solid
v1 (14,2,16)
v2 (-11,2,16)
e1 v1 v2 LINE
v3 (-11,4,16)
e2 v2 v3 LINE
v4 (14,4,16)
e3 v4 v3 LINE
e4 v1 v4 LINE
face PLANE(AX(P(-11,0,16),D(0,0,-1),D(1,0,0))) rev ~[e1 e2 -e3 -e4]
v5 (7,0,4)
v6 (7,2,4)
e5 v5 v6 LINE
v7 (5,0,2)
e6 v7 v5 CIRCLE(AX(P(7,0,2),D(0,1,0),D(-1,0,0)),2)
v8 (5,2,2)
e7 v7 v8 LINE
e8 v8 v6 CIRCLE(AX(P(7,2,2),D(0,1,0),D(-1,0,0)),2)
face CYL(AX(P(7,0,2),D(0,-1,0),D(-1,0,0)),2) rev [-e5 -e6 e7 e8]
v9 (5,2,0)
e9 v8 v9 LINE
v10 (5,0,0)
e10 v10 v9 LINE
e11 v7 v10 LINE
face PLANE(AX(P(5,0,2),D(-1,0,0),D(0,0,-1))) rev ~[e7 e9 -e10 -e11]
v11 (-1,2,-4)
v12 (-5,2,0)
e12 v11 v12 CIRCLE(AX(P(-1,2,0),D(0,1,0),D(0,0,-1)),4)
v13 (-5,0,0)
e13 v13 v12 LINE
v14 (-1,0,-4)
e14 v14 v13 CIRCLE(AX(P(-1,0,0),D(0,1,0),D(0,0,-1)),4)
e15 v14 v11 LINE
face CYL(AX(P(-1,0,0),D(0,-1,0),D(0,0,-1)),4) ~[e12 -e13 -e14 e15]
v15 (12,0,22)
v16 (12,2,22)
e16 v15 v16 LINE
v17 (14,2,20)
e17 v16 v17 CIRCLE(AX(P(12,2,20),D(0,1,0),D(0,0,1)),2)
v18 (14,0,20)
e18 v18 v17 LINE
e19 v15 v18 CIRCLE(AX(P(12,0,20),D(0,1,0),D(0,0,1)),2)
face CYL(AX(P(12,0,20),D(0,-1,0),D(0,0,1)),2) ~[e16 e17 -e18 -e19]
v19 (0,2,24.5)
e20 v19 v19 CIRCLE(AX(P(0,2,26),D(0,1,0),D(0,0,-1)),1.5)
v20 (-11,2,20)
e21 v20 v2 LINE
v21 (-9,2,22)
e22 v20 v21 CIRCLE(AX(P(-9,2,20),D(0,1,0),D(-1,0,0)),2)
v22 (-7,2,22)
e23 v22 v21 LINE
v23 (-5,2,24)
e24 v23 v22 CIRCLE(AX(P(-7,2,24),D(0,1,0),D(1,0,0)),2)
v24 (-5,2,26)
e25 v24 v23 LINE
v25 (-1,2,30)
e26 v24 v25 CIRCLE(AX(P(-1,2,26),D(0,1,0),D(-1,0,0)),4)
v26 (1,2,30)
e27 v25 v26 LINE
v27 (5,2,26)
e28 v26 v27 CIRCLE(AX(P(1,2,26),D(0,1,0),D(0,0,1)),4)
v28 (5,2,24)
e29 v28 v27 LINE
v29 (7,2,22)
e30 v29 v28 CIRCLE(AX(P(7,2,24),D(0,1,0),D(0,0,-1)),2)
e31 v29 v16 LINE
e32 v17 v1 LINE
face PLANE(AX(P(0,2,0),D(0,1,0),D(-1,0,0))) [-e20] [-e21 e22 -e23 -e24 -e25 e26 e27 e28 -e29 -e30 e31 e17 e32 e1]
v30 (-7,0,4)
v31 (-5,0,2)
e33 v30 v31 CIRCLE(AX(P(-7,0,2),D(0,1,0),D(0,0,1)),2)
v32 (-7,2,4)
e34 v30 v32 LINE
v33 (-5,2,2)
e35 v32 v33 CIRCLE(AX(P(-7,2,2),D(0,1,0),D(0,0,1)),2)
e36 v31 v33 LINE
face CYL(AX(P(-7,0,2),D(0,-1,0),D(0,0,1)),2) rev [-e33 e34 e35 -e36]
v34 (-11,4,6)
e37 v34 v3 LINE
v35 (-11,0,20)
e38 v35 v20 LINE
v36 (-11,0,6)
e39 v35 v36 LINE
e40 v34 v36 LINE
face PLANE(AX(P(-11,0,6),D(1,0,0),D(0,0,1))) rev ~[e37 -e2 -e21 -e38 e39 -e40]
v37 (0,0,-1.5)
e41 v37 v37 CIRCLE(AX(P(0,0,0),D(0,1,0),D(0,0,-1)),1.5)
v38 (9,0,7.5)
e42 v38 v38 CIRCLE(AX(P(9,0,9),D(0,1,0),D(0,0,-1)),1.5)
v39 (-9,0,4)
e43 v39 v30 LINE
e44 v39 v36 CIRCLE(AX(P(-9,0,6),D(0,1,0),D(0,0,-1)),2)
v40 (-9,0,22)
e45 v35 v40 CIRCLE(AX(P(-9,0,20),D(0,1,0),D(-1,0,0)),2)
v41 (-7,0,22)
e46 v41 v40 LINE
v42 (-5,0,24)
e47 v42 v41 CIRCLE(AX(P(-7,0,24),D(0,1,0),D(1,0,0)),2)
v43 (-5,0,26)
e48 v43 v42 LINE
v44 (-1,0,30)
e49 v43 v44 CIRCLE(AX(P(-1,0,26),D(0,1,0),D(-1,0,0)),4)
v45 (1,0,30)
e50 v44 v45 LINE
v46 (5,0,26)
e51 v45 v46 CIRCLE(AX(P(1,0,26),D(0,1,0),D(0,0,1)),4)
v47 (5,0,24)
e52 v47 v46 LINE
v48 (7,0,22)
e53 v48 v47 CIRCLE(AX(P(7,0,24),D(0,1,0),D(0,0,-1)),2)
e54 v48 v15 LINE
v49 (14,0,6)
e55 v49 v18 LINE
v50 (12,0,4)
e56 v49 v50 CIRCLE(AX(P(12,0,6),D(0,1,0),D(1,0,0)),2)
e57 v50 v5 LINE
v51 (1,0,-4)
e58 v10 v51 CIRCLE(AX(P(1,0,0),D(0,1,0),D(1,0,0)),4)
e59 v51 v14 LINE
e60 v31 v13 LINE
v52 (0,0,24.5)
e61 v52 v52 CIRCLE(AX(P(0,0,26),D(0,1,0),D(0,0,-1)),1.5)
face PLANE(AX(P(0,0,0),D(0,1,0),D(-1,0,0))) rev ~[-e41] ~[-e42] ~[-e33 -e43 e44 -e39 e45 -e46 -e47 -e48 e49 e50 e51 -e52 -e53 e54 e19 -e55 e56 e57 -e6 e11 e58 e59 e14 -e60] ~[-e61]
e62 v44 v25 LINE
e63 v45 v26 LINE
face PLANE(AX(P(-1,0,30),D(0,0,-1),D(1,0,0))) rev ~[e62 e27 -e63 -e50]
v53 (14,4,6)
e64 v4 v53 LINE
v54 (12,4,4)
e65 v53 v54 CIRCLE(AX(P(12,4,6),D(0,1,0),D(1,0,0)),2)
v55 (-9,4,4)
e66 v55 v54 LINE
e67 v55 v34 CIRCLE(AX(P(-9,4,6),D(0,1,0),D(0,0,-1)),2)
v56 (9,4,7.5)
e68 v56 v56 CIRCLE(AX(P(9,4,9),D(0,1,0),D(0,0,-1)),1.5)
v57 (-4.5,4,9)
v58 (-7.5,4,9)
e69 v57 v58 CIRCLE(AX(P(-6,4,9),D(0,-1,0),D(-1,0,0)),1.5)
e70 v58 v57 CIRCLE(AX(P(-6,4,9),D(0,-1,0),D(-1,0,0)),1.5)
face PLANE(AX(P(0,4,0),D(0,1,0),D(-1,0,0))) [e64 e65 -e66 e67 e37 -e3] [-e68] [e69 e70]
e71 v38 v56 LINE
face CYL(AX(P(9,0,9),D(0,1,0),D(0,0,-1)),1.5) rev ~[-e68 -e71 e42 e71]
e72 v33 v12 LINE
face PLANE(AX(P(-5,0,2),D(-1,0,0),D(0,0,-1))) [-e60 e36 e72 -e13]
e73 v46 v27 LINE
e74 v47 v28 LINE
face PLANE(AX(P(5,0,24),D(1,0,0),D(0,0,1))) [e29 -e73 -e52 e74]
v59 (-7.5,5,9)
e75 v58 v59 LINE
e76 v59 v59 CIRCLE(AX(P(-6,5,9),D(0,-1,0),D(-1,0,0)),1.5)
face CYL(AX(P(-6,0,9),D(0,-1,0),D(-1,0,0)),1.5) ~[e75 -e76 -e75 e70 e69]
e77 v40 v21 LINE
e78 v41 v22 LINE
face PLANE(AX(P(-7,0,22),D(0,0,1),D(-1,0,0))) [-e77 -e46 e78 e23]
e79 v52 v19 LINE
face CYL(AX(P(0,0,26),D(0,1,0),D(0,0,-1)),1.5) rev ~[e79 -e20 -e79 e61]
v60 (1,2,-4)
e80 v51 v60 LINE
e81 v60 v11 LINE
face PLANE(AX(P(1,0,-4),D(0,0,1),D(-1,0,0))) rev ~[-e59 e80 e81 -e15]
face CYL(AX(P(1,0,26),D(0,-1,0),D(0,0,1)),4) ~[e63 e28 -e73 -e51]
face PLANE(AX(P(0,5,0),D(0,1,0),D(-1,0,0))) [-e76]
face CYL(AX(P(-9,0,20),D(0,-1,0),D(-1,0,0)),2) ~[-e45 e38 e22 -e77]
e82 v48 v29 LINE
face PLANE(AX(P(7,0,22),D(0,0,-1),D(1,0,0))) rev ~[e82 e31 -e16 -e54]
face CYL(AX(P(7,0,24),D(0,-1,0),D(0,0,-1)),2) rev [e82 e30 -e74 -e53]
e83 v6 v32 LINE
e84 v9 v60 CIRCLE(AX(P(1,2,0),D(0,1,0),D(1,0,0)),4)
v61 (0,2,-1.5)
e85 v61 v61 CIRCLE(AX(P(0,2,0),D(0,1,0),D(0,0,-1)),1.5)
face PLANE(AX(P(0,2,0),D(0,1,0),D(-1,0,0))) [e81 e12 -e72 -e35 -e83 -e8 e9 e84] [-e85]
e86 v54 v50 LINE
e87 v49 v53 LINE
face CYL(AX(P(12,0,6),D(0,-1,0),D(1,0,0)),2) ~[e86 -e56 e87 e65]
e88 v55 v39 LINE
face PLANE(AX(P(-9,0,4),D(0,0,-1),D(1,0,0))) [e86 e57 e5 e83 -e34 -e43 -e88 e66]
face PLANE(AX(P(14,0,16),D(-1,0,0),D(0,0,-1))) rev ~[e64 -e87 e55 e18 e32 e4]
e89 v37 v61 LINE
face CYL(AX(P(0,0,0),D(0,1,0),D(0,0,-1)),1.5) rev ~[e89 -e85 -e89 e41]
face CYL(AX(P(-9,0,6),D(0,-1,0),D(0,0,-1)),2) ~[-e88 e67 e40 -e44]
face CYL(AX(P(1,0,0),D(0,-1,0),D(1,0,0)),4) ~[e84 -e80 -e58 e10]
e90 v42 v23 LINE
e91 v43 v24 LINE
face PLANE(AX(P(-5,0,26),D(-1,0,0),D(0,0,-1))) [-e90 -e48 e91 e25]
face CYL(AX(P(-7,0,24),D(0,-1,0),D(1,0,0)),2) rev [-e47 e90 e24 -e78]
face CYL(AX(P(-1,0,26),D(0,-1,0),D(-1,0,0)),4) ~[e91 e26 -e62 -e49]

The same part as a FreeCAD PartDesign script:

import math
import FreeCAD as App
import Part
import Sketcher

doc = App.newDocument("Part")
body = doc.addObject("PartDesign::Body", "Body")

# Sketch on XZ plane
sketch1 = doc.addObject("Sketcher::SketchObject", "Sketch")
body.addObject(sketch1)
sketch1.AttachmentSupport = (doc.XZ_Plane, [""])
sketch1.MapMode = "FlatFace"
sketch1.addGeometry([
    Part.LineSegment(App.Vector(-11, 6, 0), App.Vector(-11, 20, 0)),  # 0
    Part.ArcOfCircle(Part.Circle(App.Vector(-9, 20, 0), App.Vector(0, 0, 1), 2), math.radians(90), math.radians(180)),  # 1
    Part.LineSegment(App.Vector(-9, 22, 0), App.Vector(-7, 22, 0)),  # 2
    Part.ArcOfCircle(Part.Circle(App.Vector(-7, 24, 0), App.Vector(0, 0, 1), 2), math.radians(-90), math.radians(0)),  # 3
    Part.LineSegment(App.Vector(-5, 24, 0), App.Vector(-5, 26, 0)),  # 4
    Part.ArcOfCircle(Part.Circle(App.Vector(-1, 26, 0), App.Vector(0, 0, 1), 4), math.radians(90), math.radians(180)),  # 5
    Part.LineSegment(App.Vector(-1, 30, 0), App.Vector(1, 30, 0)),  # 6
    Part.ArcOfCircle(Part.Circle(App.Vector(1, 26, 0), App.Vector(0, 0, 1), 4), math.radians(0), math.radians(90)),  # 7
    Part.LineSegment(App.Vector(5, 26, 0), App.Vector(5, 24, 0)),  # 8
    Part.ArcOfCircle(Part.Circle(App.Vector(7, 24, 0), App.Vector(0, 0, 1), 2), math.radians(180), math.radians(270)),  # 9
    Part.LineSegment(App.Vector(7, 22, 0), App.Vector(12, 22, 0)),  # 10
    Part.ArcOfCircle(Part.Circle(App.Vector(12, 20, 0), App.Vector(0, 0, 1), 2), math.radians(0), math.radians(90)),  # 11
    Part.LineSegment(App.Vector(14, 20, 0), App.Vector(14, 6, 0)),  # 12
    Part.ArcOfCircle(Part.Circle(App.Vector(12, 6, 0), App.Vector(0, 0, 1), 2), math.radians(-90), math.radians(0)),  # 13
    Part.LineSegment(App.Vector(12, 4, 0), App.Vector(7, 4, 0)),  # 14
    Part.ArcOfCircle(Part.Circle(App.Vector(7, 2, 0), App.Vector(0, 0, 1), 2), math.radians(90), math.radians(180)),  # 15
    Part.LineSegment(App.Vector(5, 2, 0), App.Vector(5, 0, 0)),  # 16
    Part.ArcOfCircle(Part.Circle(App.Vector(1, 0, 0), App.Vector(0, 0, 1), 4), math.radians(-90), math.radians(0)),  # 17
    Part.LineSegment(App.Vector(1, -4, 0), App.Vector(-1, -4, 0)),  # 18
    Part.ArcOfCircle(Part.Circle(App.Vector(-1, 0, 0), App.Vector(0, 0, 1), 4), math.radians(180), math.radians(270)),  # 19
    Part.LineSegment(App.Vector(-5, 0, 0), App.Vector(-5, 2, 0)),  # 20
    Part.ArcOfCircle(Part.Circle(App.Vector(-7, 2, 0), App.Vector(0, 0, 1), 2), math.radians(0), math.radians(90)),  # 21
    Part.LineSegment(App.Vector(-7, 4, 0), App.Vector(-9, 4, 0)),  # 22
    Part.ArcOfCircle(Part.Circle(App.Vector(-9, 6, 0), App.Vector(0, 0, 1), 2), math.radians(180), math.radians(270)),  # 23
], False)
sketch1.addConstraint([
    Sketcher.Constraint("Tangent", 0, 2, 1, 2),
    Sketcher.Constraint("Tangent", 1, 1, 2, 1),
    Sketcher.Constraint("Tangent", 2, 2, 3, 1),
    Sketcher.Constraint("Tangent", 3, 2, 4, 1),
    Sketcher.Constraint("Tangent", 4, 2, 5, 2),
    Sketcher.Constraint("Tangent", 5, 1, 6, 1),
    Sketcher.Constraint("Tangent", 6, 2, 7, 2),
    Sketcher.Constraint("Tangent", 7, 1, 8, 1),
    Sketcher.Constraint("Tangent", 8, 2, 9, 1),
    Sketcher.Constraint("Tangent", 9, 2, 10, 1),
    Sketcher.Constraint("Tangent", 10, 2, 11, 2),
    Sketcher.Constraint("Tangent", 11, 1, 12, 1),
    Sketcher.Constraint("Tangent", 12, 2, 13, 2),
    Sketcher.Constraint("Tangent", 13, 1, 14, 1),
    Sketcher.Constraint("Tangent", 14, 2, 15, 1),
    Sketcher.Constraint("Tangent", 15, 2, 16, 1),
    Sketcher.Constraint("Tangent", 16, 2, 17, 2),
    Sketcher.Constraint("Tangent", 17, 1, 18, 1),
    Sketcher.Constraint("Tangent", 18, 2, 19, 2),
    Sketcher.Constraint("Tangent", 19, 1, 20, 1),
    Sketcher.Constraint("Tangent", 20, 2, 21, 1),
    Sketcher.Constraint("Tangent", 21, 2, 22, 1),
    Sketcher.Constraint("Tangent", 22, 2, 23, 2),
    Sketcher.Constraint("Tangent", 23, 1, 0, 1),
    Sketcher.Constraint("Vertical", 0),
    Sketcher.Constraint("Horizontal", 2),
    Sketcher.Constraint("Vertical", 4),
    Sketcher.Constraint("Horizontal", 6),
    Sketcher.Constraint("Vertical", 8),
    Sketcher.Constraint("Horizontal", 10),
    Sketcher.Constraint("Vertical", 12),
    Sketcher.Constraint("Horizontal", 14),
    Sketcher.Constraint("Vertical", 16),
    Sketcher.Constraint("Horizontal", 18),
    Sketcher.Constraint("Vertical", 20),
    Sketcher.Constraint("Horizontal", 22),
    Sketcher.Constraint("Equal", 1, 3),
    Sketcher.Constraint("Equal", 5, 7),
    Sketcher.Constraint("Equal", 3, 9),
    Sketcher.Constraint("Equal", 9, 11),
    Sketcher.Constraint("Equal", 11, 13),
    Sketcher.Constraint("Equal", 13, 15),
    Sketcher.Constraint("Equal", 7, 17),
    Sketcher.Constraint("Equal", 17, 19),
    Sketcher.Constraint("Equal", 15, 21),
    Sketcher.Constraint("Equal", 21, 23),
    Sketcher.Constraint("Symmetric", 17, 3, 19, 3, -1, 1),
    Sketcher.Constraint("Symmetric", 3, 3, 9, 3, -2),
    Sketcher.Constraint("Horizontal", 15, 3, 21, 3),
    Sketcher.Constraint("Vertical", 9, 3, 15, 3),
    Sketcher.Constraint("Equal", 2, 6),
    Sketcher.Constraint("Equal", 22, 4),
    Sketcher.Constraint("Equal", 8, 16),
    Sketcher.Constraint("Radius", 1, 2.0),
    Sketcher.Constraint("Radius", 5, 4.0),
    Sketcher.Constraint("DistanceX", 2, 1, 2, 2, 2.0),
    Sketcher.Constraint("DistanceX", 10, 1, 10, 2, 5.0),
    Sketcher.Constraint("DistanceY", -1, 1, 5, 3, 26.0),
])
pad1 = doc.addObject("PartDesign::Pad", "Pad")
body.addObject(pad1)
pad1.Profile = sketch1
pad1.Length = 2
pad1.Reversed = True

# Sketch on XZ plane
sketch2 = doc.addObject("Sketcher::SketchObject", "Sketch001")
body.addObject(sketch2)
sketch2.AttachmentSupport = (doc.XZ_Plane, [""])
sketch2.MapMode = "FlatFace"
sketch2.addGeometry([
    Part.LineSegment(App.Vector(-11, 16, 0), App.Vector(14, 16, 0)),  # 0
    Part.LineSegment(App.Vector(14, 16, 0), App.Vector(14, 6, 0)),  # 1
    Part.ArcOfCircle(Part.Circle(App.Vector(12, 6, 0), App.Vector(0, 0, 1), 2), math.radians(-90), math.radians(0)),  # 2
    Part.LineSegment(App.Vector(12, 4, 0), App.Vector(-9, 4, 0)),  # 3
    Part.ArcOfCircle(Part.Circle(App.Vector(-9, 6, 0), App.Vector(0, 0, 1), 2), math.radians(180), math.radians(270)),  # 4
    Part.LineSegment(App.Vector(-11, 6, 0), App.Vector(-11, 16, 0)),  # 5
], False)
sketch2.addConstraint([
    Sketcher.Constraint("Coincident", 0, 2, 1, 1),
    Sketcher.Constraint("Tangent", 1, 2, 2, 2),
    Sketcher.Constraint("Tangent", 2, 1, 3, 1),
    Sketcher.Constraint("Tangent", 3, 2, 4, 2),
    Sketcher.Constraint("Tangent", 4, 1, 5, 1),
    Sketcher.Constraint("Coincident", 5, 2, 0, 1),
    Sketcher.Constraint("Horizontal", 0),
    Sketcher.Constraint("Vertical", 1),
    Sketcher.Constraint("Horizontal", 3),
    Sketcher.Constraint("Vertical", 5),
    Sketcher.Constraint("Equal", 2, 4),
    Sketcher.Constraint("Radius", 2, 2.0),
    Sketcher.Constraint("DistanceY", 1, 2, 1, 1, 10.0),
    Sketcher.Constraint("DistanceY", -1, 1, 2, 3, 6.0),
    Sketcher.Constraint("DistanceX", 4, 3, -1, 1, 9.0),
    Sketcher.Constraint("DistanceX", 0, 1, 0, 2, 25.0),
])
pad2 = doc.addObject("PartDesign::Pad", "Pad001")
body.addObject(pad2)
pad2.Profile = sketch2
pad2.Length = 4
pad2.Reversed = True

# Sketch on XZ plane
sketch3 = doc.addObject("Sketcher::SketchObject", "Sketch002")
body.addObject(sketch3)
sketch3.AttachmentSupport = (doc.XZ_Plane, [""])
sketch3.MapMode = "FlatFace"
sketch3.addGeometry([
    Part.Circle(App.Vector(0, 26, 0), App.Vector(0, 0, 1), 1.5),
    Part.Circle(App.Vector(9, 9, 0), App.Vector(0, 0, 1), 1.5),
    Part.Circle(App.Vector(0, 0, 0), App.Vector(0, 0, 1), 1.5),
], False)
sketch3.addConstraint([
    Sketcher.Constraint("Coincident", 2, 3, -1, 1),
    Sketcher.Constraint("Equal", 0, 1),
    Sketcher.Constraint("Equal", 1, 2),
    Sketcher.Constraint("PointOnObject", 0, 3, -2),
    Sketcher.Constraint("Diameter", 0, 3.0),
    Sketcher.Constraint("DistanceY", -1, 1, 0, 3, 26.0),
    Sketcher.Constraint("DistanceX", -1, 1, 1, 3, 9.0),
    Sketcher.Constraint("DistanceY", -1, 1, 1, 3, 9.0),
])
doc.recompute()
hole = doc.addObject("PartDesign::Hole", "Hole")
body.addObject(hole)
hole.Profile = sketch3
hole.ThreadType = "None"
hole.Diameter = 3
hole.DepthType = "Dimension"
hole.Depth = 8
hole.DrillPoint = "Angled"
hole.DrillPointAngle = 118

# Sketch on XZ plane
sketch4 = doc.addObject("Sketcher::SketchObject", "Sketch003")
body.addObject(sketch4)
sketch4.AttachmentSupport = (doc.XZ_Plane, [""])
sketch4.MapMode = "FlatFace"
sketch4.addGeometry(Part.Circle(App.Vector(-6, 9, 0), App.Vector(0, 0, 1), 1.5), False)
sketch4.addConstraint([
    Sketcher.Constraint("Diameter", 0, 3.0),
    Sketcher.Constraint("DistanceX", 0, 3, -1, 1, 6.0),
    Sketcher.Constraint("DistanceY", -1, 1, 0, 3, 9.0),
])
pad3 = doc.addObject("PartDesign::Pad", "Pad002")
body.addObject(pad3)
pad3.Profile = sketch4
pad3.Length = 5
pad3.Reversed = True

doc.recompute()
